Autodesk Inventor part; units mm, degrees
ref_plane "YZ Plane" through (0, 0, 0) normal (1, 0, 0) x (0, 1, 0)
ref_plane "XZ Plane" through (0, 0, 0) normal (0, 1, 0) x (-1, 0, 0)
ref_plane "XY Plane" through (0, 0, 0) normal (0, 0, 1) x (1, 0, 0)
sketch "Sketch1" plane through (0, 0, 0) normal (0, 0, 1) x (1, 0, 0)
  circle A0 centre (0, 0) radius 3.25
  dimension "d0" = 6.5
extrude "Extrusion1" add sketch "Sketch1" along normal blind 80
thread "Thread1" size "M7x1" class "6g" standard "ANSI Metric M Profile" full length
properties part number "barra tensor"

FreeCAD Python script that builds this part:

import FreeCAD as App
import Part
import Sketcher
Q = App.Units.Quantity

doc = App.newDocument("Part")
body = doc.addObject("PartDesign::Body", "Body")

# Sketch on XY plane
sketch1 = doc.addObject("Sketcher::SketchObject", "Sketch")
body.addObject(sketch1)
sketch1.AttachmentSupport = (doc.XY_Plane, [""])
sketch1.MapMode = "FlatFace"
sketch1.addGeometry(Part.Circle(App.Vector(0, 0, 0), App.Vector(0, 0, 1), 3.25), False)
sketch1.addConstraint([
    Sketcher.Constraint("Coincident", 0, 3, -1, 1),
    Sketcher.Constraint("Diameter", 0, Q("6.5 mm")),
])
pad1 = doc.addObject("PartDesign::Pad", "Pad")
body.addObject(pad1)
pad1.Profile = sketch1
pad1.Length = 80

doc.recompute()
